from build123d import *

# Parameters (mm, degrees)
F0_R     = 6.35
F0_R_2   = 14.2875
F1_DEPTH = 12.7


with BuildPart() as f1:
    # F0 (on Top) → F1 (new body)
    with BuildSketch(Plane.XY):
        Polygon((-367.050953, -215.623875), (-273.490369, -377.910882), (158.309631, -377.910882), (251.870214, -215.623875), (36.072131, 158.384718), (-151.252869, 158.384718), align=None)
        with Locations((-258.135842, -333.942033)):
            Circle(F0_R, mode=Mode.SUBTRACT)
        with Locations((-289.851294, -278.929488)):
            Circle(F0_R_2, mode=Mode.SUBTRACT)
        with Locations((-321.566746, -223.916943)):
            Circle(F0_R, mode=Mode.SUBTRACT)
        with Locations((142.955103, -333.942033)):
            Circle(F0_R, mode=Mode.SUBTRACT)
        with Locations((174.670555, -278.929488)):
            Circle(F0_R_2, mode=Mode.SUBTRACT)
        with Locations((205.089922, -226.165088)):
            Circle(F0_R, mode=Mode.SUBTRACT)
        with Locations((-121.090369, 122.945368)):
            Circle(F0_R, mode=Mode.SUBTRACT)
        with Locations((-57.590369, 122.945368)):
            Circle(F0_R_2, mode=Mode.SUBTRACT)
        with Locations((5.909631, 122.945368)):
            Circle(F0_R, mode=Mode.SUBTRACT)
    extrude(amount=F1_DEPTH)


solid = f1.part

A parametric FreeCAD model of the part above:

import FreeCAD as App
import Part
import Sketcher
from FreeCAD import Vector
Q = App.Units.Quantity

doc = App.newDocument("Part")
body = doc.addObject("PartDesign::Body", "Body")

# Sketch on XY plane
sketch1 = doc.addObject("Sketcher::SketchObject", "Sketch")
body.addObject(sketch1)
sketch1.AttachmentSupport = (doc.XY_Plane, [""])
sketch1.MapMode = "FlatFace"
sketch1.addGeometry([
    Part.LineSegment(Vector(-367.050953, -215.623875, 0), Vector(-273.490369, -377.910882, 0)),  # 0
    Part.LineSegment(Vector(-273.490369, -377.910882, 0), Vector(158.309631, -377.910882, 0)),  # 1
    Part.LineSegment(Vector(158.309631, -377.910882, 0), Vector(251.870214, -215.623875, 0)),  # 2
    Part.LineSegment(Vector(251.870214, -215.623875, 0), Vector(36.072131, 158.384718, 0)),  # 3
    Part.LineSegment(Vector(36.072131, 158.384718, 0), Vector(-151.252869, 158.384718, 0)),  # 4
    Part.LineSegment(Vector(-151.252869, 158.384718, 0), Vector(-367.050953, -215.623875, 0)),  # 5
    Part.Circle(Vector(-258.135842, -333.942033, 0), Vector(0, 0, 1), 6.35),  # 6
    Part.Circle(Vector(-289.851294, -278.929488, 0), Vector(0, 0, 1), 14.2875),  # 7
    Part.Circle(Vector(-321.566746, -223.916943, 0), Vector(0, 0, 1), 6.35),  # 8
    Part.Circle(Vector(142.955103, -333.942033, 0), Vector(0, 0, 1), 6.35),  # 9
    Part.Circle(Vector(174.670555, -278.929488, 0), Vector(0, 0, 1), 14.2875),  # 10
    Part.Circle(Vector(205.089922, -226.165088, 0), Vector(0, 0, 1), 6.35),  # 11
    Part.Circle(Vector(-121.090369, 122.945368, 0), Vector(0, 0, 1), 6.35),  # 12
    Part.Circle(Vector(-57.590369, 122.945368, 0), Vector(0, 0, 1), 14.2875),  # 13
    Part.Circle(Vector(5.909631, 122.945368, 0), Vector(0, 0, 1), 6.35),  # 14
], False)
sketch1.addConstraint([
    Sketcher.Constraint("Coincident", 0, 2, 1, 1),
    Sketcher.Constraint("Coincident", 1, 2, 2, 1),
    Sketcher.Constraint("Coincident", 2, 2, 3, 1),
    Sketcher.Constraint("Coincident", 3, 2, 4, 1),
    Sketcher.Constraint("Coincident", 4, 2, 5, 1),
    Sketcher.Constraint("Coincident", 5, 2, 0, 1),
    Sketcher.Constraint("Horizontal", 1),
    Sketcher.Constraint("Horizontal", 4),
    Sketcher.Constraint("Equal", 6, 8),
    Sketcher.Constraint("Equal", 8, 9),
    Sketcher.Constraint("Equal", 7, 10),
    Sketcher.Constraint("Equal", 9, 11),
    Sketcher.Constraint("Equal", 11, 12),
    Sketcher.Constraint("Equal", 10, 13),
    Sketcher.Constraint("Equal", 12, 14),
    Sketcher.Constraint("Horizontal", 6, 3, 9, 3),
    Sketcher.Constraint("Horizontal", 7, 3, 10, 3),
    Sketcher.Constraint("Horizontal", 12, 3, 13, 3),
    Sketcher.Constraint("Horizontal", 13, 3, 14, 3),
    Sketcher.Constraint("Horizontal", 2, 2, 5, 2),
    Sketcher.Constraint("Equal", 0, 2),
    Sketcher.Constraint("Equal", 3, 5),
    Sketcher.Constraint("Diameter", 6, Q("0.5 in")),
    Sketcher.Constraint("DistanceX", 1, 1, 1, 2, Q("17 in")),
    Sketcher.Constraint("Distance", 3, Q("17 in")),
    Sketcher.Constraint("Diameter", 7, Q("1.125 in")),
    Sketcher.Constraint("DistanceX", 12, 3, 14, 3, Q("5 in")),
    Sketcher.Constraint("DistanceX", 12, 3, 13, 3, Q("2.5 in")),
    Sketcher.Constraint("DistanceX", 4, 2, 4, 1, Q("7.375 in")),
    Sketcher.Constraint("Distance", 0, Q("7.375 in")),
    Sketcher.Constraint("DistanceX", 14, 3, 3, 2, Q("1.1875 in")),
    Sketcher.Constraint("DistanceX", 8, 3, 10, 3, 496.237301),
    Sketcher.Constraint("DistanceY", 10, 3, 11, 3, 52.7644),
    Sketcher.Constraint("DistanceY", 6, 3, 12, 3, 456.887401),
    Sketcher.Constraint("DistanceY", 7, 3, -1, 1, 278.929488),
    Sketcher.Constraint("DistanceX", -1, 1, 11, 3, 205.089922),
    Sketcher.Constraint("DistanceX", 12, 3, -1, 1, 121.090369),
    Sketcher.Constraint("DistanceY", -1, 1, 12, 3, 122.945368),
    Sketcher.Constraint("DistanceY", 0, 2, -1, 1, 377.910882),
    Sketcher.Constraint("DistanceY", -1, 1, 3, 2, 158.384718),
    Sketcher.Constraint("DistanceX", 7, 3, 6, 3, 31.715452),
    Sketcher.Constraint("DistanceY", 6, 3, 8, 3, 110.02509),
    Sketcher.Constraint("DistanceX", 8, 3, 9, 3, 464.521849),
    Sketcher.Constraint("DistanceX", 7, 3, 10, 3, 464.521849),
    Sketcher.Constraint("DistanceX", 9, 3, 11, 3, 62.134819),
])
pad1 = doc.addObject("PartDesign::Pad", "Pad")
body.addObject(pad1)
pad1.Profile = sketch1
pad1.Length = Q("0.5 in")

doc.recompute()
